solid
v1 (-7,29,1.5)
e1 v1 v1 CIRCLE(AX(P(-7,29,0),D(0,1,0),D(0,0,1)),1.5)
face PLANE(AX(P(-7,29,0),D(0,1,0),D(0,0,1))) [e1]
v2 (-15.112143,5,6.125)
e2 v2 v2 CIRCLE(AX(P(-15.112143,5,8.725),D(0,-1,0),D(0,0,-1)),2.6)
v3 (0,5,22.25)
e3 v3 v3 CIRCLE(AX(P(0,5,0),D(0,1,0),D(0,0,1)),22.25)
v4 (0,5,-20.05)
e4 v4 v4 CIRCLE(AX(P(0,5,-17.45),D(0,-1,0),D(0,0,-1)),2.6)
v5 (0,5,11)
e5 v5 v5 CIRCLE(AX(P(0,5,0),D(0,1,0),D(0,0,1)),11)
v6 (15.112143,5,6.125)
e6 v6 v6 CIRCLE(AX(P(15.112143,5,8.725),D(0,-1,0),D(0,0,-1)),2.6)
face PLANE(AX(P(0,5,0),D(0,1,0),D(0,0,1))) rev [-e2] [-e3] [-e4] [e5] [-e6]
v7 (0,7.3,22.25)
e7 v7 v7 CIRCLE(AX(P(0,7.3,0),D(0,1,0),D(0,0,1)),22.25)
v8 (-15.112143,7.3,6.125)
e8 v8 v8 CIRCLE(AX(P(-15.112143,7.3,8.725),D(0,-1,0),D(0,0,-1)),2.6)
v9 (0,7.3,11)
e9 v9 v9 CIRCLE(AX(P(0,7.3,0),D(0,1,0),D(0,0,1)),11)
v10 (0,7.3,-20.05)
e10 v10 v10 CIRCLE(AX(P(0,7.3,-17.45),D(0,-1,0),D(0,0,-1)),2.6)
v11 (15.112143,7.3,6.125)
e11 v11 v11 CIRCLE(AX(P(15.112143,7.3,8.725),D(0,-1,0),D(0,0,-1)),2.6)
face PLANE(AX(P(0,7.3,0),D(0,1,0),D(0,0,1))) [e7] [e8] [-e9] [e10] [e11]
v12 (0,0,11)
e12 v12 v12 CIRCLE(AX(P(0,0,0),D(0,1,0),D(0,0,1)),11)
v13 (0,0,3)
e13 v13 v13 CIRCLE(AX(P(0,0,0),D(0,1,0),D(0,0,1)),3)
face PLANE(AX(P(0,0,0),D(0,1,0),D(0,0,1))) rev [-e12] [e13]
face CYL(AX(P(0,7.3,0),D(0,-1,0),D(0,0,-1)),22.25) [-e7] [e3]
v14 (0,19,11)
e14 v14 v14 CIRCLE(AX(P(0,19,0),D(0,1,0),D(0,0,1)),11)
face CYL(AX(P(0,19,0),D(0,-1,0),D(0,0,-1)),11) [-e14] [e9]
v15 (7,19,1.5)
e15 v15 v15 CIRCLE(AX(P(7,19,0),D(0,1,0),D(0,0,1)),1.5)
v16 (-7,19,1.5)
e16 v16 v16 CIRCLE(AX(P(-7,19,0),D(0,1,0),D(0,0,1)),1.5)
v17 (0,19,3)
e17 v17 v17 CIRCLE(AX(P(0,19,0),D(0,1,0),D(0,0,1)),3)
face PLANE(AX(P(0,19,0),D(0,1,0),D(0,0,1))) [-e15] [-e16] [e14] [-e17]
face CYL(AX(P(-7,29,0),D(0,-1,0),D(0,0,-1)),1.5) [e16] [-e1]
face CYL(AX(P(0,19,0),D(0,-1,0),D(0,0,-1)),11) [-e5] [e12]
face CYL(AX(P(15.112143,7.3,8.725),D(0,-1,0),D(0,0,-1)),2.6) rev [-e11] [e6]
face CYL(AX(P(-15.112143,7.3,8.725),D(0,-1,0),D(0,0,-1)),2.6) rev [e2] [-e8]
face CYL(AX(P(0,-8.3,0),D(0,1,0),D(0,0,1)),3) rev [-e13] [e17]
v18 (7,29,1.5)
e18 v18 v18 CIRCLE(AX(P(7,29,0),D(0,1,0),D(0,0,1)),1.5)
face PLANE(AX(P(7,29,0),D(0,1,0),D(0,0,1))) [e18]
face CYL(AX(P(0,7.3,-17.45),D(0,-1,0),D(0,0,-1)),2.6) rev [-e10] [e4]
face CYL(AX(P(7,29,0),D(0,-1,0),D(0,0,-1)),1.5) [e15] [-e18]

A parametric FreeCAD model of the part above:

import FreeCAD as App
import Part
import Sketcher

doc = App.newDocument("Part")
body = doc.addObject("PartDesign::Body", "Body")

sketch1 = body.newObject("Sketcher::SketchObject", "Sketch")
sketch1.AttachmentSupport = (doc.getObject("XZ_Plane"), [""])
sketch1.MapMode = "FlatFace"
sketch1.addGeometry(Part.Circle(App.Vector(0, 0, 0), App.Vector(0, 0, 1), 11), False)
sketch1.addConstraint(Sketcher.Constraint("Coincident", 0, 3, -1, 1))
sketch1.addConstraint(Sketcher.Constraint("Diameter", 0, 22.0))
pad1 = body.newObject("PartDesign::Pad", "Pad")
pad1.Profile = sketch1
pad1.Length = 19
pad1.Reversed = True

sketch2 = body.newObject("Sketcher::SketchObject", "Sketch001")
sketch2.AttachmentSupport = (doc.getObject("XZ_Plane"), [""])
sketch2.MapMode = "FlatFace"
sketch2.AttachmentOffset = App.Placement(App.Vector(0, 0, -5), App.Rotation())
sketch2.addGeometry(Part.Circle(App.Vector(0, 0, 0), App.Vector(0, 0, 1), 22), False)
sketch2.addConstraint(Sketcher.Constraint("Coincident", 0, 3, -1, 1))
sketch2.addConstraint(Sketcher.Constraint("Diameter", 0, 44.5))
pad2 = body.newObject("PartDesign::Pad", "Pad001")
pad2.Profile = sketch2
pad2.Length = 2.3
pad2.Reversed = True

sketch3 = body.newObject("Sketcher::SketchObject", "Sketch002")
sketch3.AttachmentSupport = (doc.getObject("XZ_Plane"), [""])
sketch3.MapMode = "FlatFace"
sketch3.AttachmentOffset = App.Placement(App.Vector(0, 0, -5), App.Rotation())
sketch3.addGeometry(Part.Circle(App.Vector(15.1, 8.7, 0), App.Vector(0, 0, 1), 2.6), False)
sketch3.addGeometry(Part.Circle(App.Vector(-15.1, 8.7, 0), App.Vector(0, 0, 1), 2.6), False)
sketch3.addGeometry(Part.Circle(App.Vector(0, -17.4, 0), App.Vector(0, 0, 1), 2.6), False)
sketch3.addConstraint(Sketcher.Constraint("Equal", 0, 1))
sketch3.addConstraint(Sketcher.Constraint("Equal", 1, 2))
sketch3.addConstraint(Sketcher.Constraint("Symmetric", 0, 3, 1, 3, -2))
sketch3.addConstraint(Sketcher.Constraint("PointOnObject", 2, 3, -2))
sketch3.addConstraint(Sketcher.Constraint("Diameter", 0, 5.2))
sketch3.addConstraint(Sketcher.Constraint("DistanceY", 2, 3, -1, 1, 17.45))
sketch3.addConstraint(Sketcher.Constraint("DistanceY", -1, 1, 0, 3, 8.725))
sketch3.addConstraint(Sketcher.Constraint("DistanceX", -1, 1, 0, 3, 15.112143))
pocket1 = body.newObject("PartDesign::Pocket", "Pocket")
pocket1.Profile = sketch3
pocket1.Length = 2.3

sketch4 = body.newObject("Sketcher::SketchObject", "Sketch003")
sketch4.AttachmentSupport = (doc.getObject("XZ_Plane"), [""])
sketch4.MapMode = "FlatFace"
sketch4.AttachmentOffset = App.Placement(App.Vector(0, 0, -19), App.Rotation())
sketch4.addGeometry(Part.Circle(App.Vector(0, 0, 0), App.Vector(0, 0, 1), 3), False)
sketch4.addConstraint(Sketcher.Constraint("Coincident", 0, 3, -1, 1))
sketch4.addConstraint(Sketcher.Constraint("Diameter", 0, 6.0))
pocket2 = body.newObject("PartDesign::Pocket", "Pocket001")
pocket2.Profile = sketch4
pocket2.Length = 27.3
pocket2.Reversed = True

sketch5 = body.newObject("Sketcher::SketchObject", "Sketch004")
sketch5.AttachmentSupport = (doc.getObject("XZ_Plane"), [""])
sketch5.MapMode = "FlatFace"
sketch5.AttachmentOffset = App.Placement(App.Vector(0, 0, -19), App.Rotation())
sketch5.addGeometry(Part.Circle(App.Vector(-7, 0, 0), App.Vector(0, 0, 1), 1.5), False)
sketch5.addGeometry(Part.Circle(App.Vector(7, 0, 0), App.Vector(0, 0, 1), 1.5), False)
sketch5.addConstraint(Sketcher.Constraint("Equal", 0, 1))
sketch5.addConstraint(Sketcher.Constraint("Symmetric", 0, 3, 1, 3, -1, 1))
sketch5.addConstraint(Sketcher.Constraint("PointOnObject", 0, 3, -1))
sketch5.addConstraint(Sketcher.Constraint("Diameter", 0, 3.0))
sketch5.addConstraint(Sketcher.Constraint("DistanceX", 0, 3, -1, 1, 7.0))
pad3 = body.newObject("PartDesign::Pad", "Pad002")
pad3.Profile = sketch5
pad3.Length = 10
pad3.Reversed = True

doc.recompute()
